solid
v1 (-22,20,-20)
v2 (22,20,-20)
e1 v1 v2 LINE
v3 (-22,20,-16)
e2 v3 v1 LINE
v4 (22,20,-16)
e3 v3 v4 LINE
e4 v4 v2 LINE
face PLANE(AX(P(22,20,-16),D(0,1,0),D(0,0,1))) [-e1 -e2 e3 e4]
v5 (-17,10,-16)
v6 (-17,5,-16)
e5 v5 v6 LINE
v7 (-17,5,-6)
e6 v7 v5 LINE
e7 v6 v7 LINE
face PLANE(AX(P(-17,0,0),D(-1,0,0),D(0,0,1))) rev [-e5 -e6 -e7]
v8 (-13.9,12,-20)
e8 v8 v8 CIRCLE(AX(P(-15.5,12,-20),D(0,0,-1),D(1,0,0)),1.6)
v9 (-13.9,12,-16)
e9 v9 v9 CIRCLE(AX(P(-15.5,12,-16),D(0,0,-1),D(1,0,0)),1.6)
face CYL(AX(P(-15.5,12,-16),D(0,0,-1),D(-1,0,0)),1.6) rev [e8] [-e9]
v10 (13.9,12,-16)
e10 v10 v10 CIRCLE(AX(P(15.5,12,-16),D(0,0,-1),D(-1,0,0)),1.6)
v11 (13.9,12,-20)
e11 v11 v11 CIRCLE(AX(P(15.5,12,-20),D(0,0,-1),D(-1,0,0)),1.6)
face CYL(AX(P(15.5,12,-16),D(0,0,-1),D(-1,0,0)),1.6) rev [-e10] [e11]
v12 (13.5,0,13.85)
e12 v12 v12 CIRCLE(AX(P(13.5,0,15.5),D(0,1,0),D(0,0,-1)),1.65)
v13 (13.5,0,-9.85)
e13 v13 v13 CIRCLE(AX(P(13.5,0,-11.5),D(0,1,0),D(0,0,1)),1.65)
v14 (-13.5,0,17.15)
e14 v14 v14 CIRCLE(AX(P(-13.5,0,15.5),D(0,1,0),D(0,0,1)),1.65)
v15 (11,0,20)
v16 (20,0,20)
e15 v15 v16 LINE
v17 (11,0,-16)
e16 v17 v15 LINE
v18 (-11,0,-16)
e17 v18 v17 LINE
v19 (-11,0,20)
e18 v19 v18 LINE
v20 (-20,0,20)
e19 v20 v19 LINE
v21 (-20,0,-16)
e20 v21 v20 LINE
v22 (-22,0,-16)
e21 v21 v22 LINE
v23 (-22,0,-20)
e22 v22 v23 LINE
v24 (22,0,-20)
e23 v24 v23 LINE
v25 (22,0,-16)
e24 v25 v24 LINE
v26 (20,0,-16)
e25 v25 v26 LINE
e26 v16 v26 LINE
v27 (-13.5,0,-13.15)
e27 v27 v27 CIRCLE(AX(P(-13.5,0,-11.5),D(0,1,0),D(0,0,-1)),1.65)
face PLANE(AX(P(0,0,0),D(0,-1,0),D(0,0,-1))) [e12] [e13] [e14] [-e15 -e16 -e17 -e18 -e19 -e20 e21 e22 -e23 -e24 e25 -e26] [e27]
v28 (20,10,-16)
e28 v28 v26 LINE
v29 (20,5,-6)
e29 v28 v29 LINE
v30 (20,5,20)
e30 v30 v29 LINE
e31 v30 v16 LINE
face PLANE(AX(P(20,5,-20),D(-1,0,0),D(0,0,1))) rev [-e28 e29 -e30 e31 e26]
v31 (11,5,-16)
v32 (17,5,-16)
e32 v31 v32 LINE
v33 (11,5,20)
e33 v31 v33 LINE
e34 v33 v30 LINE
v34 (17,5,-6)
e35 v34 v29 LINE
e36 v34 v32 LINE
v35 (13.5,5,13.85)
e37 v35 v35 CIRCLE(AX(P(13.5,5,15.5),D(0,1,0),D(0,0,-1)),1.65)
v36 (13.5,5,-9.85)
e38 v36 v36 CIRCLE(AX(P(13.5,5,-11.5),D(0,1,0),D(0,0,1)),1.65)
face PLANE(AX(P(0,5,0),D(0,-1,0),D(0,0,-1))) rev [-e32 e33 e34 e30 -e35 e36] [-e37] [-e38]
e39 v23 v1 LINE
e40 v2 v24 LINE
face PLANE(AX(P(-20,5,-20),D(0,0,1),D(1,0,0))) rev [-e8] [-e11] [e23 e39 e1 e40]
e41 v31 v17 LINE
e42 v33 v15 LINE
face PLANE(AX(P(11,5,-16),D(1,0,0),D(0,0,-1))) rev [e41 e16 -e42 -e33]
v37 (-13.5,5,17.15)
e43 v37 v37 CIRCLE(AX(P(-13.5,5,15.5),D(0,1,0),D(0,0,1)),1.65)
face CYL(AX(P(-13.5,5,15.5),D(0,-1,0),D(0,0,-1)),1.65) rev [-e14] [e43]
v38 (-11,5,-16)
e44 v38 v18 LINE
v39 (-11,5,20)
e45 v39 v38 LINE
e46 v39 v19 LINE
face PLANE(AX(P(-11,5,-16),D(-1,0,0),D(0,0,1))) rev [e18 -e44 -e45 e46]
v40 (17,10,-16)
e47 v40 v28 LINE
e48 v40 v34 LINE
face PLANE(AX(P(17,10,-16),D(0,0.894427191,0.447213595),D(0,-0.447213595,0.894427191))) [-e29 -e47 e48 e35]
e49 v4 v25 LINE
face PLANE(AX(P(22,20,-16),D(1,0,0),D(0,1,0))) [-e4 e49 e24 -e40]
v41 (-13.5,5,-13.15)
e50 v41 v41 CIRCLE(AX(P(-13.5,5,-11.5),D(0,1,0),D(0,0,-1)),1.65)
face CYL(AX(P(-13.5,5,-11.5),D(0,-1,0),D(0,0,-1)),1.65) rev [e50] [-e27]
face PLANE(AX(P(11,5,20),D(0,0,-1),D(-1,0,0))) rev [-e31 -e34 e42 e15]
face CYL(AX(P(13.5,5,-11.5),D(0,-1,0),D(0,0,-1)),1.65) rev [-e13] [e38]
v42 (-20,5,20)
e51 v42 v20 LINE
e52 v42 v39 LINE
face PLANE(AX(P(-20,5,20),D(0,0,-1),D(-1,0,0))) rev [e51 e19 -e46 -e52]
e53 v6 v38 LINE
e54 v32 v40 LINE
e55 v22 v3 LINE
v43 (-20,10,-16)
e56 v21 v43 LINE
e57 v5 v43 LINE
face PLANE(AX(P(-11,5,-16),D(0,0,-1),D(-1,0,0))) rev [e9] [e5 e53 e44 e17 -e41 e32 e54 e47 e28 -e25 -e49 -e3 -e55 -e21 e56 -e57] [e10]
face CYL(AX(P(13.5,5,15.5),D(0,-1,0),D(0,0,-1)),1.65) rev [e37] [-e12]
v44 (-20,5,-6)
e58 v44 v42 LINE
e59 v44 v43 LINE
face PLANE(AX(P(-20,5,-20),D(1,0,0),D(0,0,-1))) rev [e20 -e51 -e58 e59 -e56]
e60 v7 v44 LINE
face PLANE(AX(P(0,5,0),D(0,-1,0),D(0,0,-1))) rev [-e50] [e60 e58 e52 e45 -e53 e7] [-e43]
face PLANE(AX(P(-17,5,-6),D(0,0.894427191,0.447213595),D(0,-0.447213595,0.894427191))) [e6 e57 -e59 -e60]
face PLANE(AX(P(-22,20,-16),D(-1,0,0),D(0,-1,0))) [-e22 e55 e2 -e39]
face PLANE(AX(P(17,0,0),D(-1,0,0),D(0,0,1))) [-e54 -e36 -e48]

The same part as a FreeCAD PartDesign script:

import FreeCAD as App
import Part
import Sketcher
Q = App.Units.Quantity


def add_polygon(sketch, points):
    """Adds a closed chain of lines whose ends are joined by coincident constraints."""
    first, n = sketch.GeometryCount, len(points)
    for a, b in zip(points, points[1:] + points[:1]):
        sketch.addGeometry(Part.LineSegment(App.Vector(*a, 0), App.Vector(*b, 0)), False)
    for i in range(n):
        sketch.addConstraint(Sketcher.Constraint("Coincident", first + i, 2, first + (i + 1) % n, 1))

doc = App.newDocument("Part")
body = doc.addObject("PartDesign::Body", "Body")

# Sketch on XZ plane
sketch1 = doc.addObject("Sketcher::SketchObject", "Sketch")
body.addObject(sketch1)
sketch1.AttachmentSupport = (doc.XZ_Plane, [""])
sketch1.MapMode = "FlatFace"
add_polygon(sketch1, [(20, -20), (-20, -20), (-20, 20), (-11, 20), (-11, -16), (11, -16), (11, 20), (20, 20)])  # lines 0-7
sketch1.addGeometry(Part.Circle(App.Vector(13.5, 15.5, 0), App.Vector(0, 0, 1), 1.65), False)  # 8
sketch1.addGeometry(Part.Circle(App.Vector(-13.5, 15.5, 0), App.Vector(0, 0, 1), 1.65), False)  # 9
sketch1.addGeometry(Part.Circle(App.Vector(13.5, -11.5, 0), App.Vector(0, 0, 1), 1.65), False)  # 10
sketch1.addGeometry(Part.Circle(App.Vector(-13.5, -11.5, 0), App.Vector(0, 0, 1), 1.65), False)  # 11
sketch1.addConstraint(Sketcher.Constraint("Horizontal", 0))
sketch1.addConstraint(Sketcher.Constraint("Vertical", 1))
sketch1.addConstraint(Sketcher.Constraint("Horizontal", 2))
sketch1.addConstraint(Sketcher.Constraint("Vertical", 3))
sketch1.addConstraint(Sketcher.Constraint("Horizontal", 4))
sketch1.addConstraint(Sketcher.Constraint("Vertical", 5))
sketch1.addConstraint(Sketcher.Constraint("Horizontal", 6))
sketch1.addConstraint(Sketcher.Constraint("Vertical", 7))
sketch1.addConstraint(Sketcher.Constraint("Equal", 8, 9))
sketch1.addConstraint(Sketcher.Constraint("Equal", 9, 10))
sketch1.addConstraint(Sketcher.Constraint("Equal", 10, 11))
sketch1.addConstraint(Sketcher.Constraint("Symmetric", 0, 2, 6, 2, -1, 1))
sketch1.addConstraint(Sketcher.Constraint("Symmetric", 8, 3, 9, 3, -2))
sketch1.addConstraint(Sketcher.Constraint("Symmetric", 10, 3, 11, 3, -2))
sketch1.addConstraint(Sketcher.Constraint("Symmetric", 2, 2, 5, 2, -2))
sketch1.addConstraint(Sketcher.Constraint("Vertical", 8, 3, 10, 3))
sketch1.addConstraint(Sketcher.Constraint("Equal", 0, 1))
sketch1.addConstraint(Sketcher.Constraint("Diameter", 8, Q("3.3 mm")))
sketch1.addConstraint(Sketcher.Constraint("DistanceX", 0, 2, 0, 1, Q("40 mm")))
sketch1.addConstraint(Sketcher.Constraint("DistanceX", 2, 1, 2, 2, Q("9 mm")))
sketch1.addConstraint(Sketcher.Constraint("DistanceY", 3, 2, 3, 1, Q("36 mm")))
sketch1.addConstraint(Sketcher.Constraint("DistanceX", 9, 3, 8, 3, Q("27 mm")))
sketch1.addConstraint(Sketcher.Constraint("DistanceY", 10, 3, 8, 3, Q("27 mm")))
sketch1.addConstraint(Sketcher.Constraint("DistanceY", -1, 1, 8, 3, Q("15.5 mm")))
pad1 = doc.addObject("PartDesign::Pad", "Pad")
body.addObject(pad1)
pad1.Profile = sketch1
pad1.Length = 5
pad1.Reversed = True

# Sketch on XY plane
sketch2 = doc.addObject("Sketcher::SketchObject", "Sketch001")
body.addObject(sketch2)
sketch2.AttachmentSupport = (doc.XY_Plane, [""])
sketch2.MapMode = "FlatFace"
sketch2.AttachmentOffset = App.Placement(App.Vector(0, 0, -20), App.Rotation())
add_polygon(sketch2, [(22, 20), (22, 0), (-22, 0), (-22, 20)])  # lines 0-3
sketch2.addGeometry(Part.Circle(App.Vector(15.5, 12, 0), App.Vector(0, 0, 1), 1.6), False)  # 4
sketch2.addGeometry(Part.Circle(App.Vector(-15.5, 12, 0), App.Vector(0, 0, 1), 1.6), False)  # 5
sketch2.addConstraint(Sketcher.Constraint("Vertical", 0))
sketch2.addConstraint(Sketcher.Constraint("Horizontal", 1))
sketch2.addConstraint(Sketcher.Constraint("Vertical", 2))
sketch2.addConstraint(Sketcher.Constraint("Horizontal", 3))
sketch2.addConstraint(Sketcher.Constraint("Equal", 4, 5))
sketch2.addConstraint(Sketcher.Constraint("Symmetric", 0, 2, 1, 2, -1, 1))
sketch2.addConstraint(Sketcher.Constraint("Symmetric", 4, 3, 5, 3, -2))
sketch2.addConstraint(Sketcher.Constraint("Diameter", 4, Q("3.2 mm")))
sketch2.addConstraint(Sketcher.Constraint("DistanceX", 1, 2, 1, 1, Q("44 mm")))
sketch2.addConstraint(Sketcher.Constraint("DistanceY", 0, 2, 0, 1, Q("20 mm")))
sketch2.addConstraint(Sketcher.Constraint("DistanceY", -1, 1, 4, 3, Q("12 mm")))
sketch2.addConstraint(Sketcher.Constraint("DistanceX", 5, 3, 4, 3, Q("31 mm")))
pad2 = doc.addObject("PartDesign::Pad", "Pad001")
body.addObject(pad2)
pad2.Profile = sketch2
pad2.Length = 4

# Sketch on YZ plane
sketch3 = doc.addObject("Sketcher::SketchObject", "Sketch002")
body.addObject(sketch3)
sketch3.AttachmentSupport = (doc.YZ_Plane, [""])
sketch3.MapMode = "FlatFace"
sketch3.AttachmentOffset = App.Placement(App.Vector(0, 0, -20), App.Rotation())
add_polygon(sketch3, [(0, -16), (5, -6), (5, -16)])  # lines 0-2
sketch3.addConstraint(Sketcher.Constraint("Vertical", 1))
sketch3.addConstraint(Sketcher.Constraint("Horizontal", 2))
sketch3.addConstraint(Sketcher.Constraint("PointOnObject", 2, 2, -2))
sketch3.addConstraint(Sketcher.Constraint("DistanceX", 2, 2, 2, 1, Q("5 mm")))
sketch3.addConstraint(Sketcher.Constraint("DistanceY", 1, 2, 1, 1, Q("10 mm")))
sketch3.addConstraint(Sketcher.Constraint("DistanceY", 0, 2, -1, 1, Q("6 mm")))
pad3 = doc.addObject("PartDesign::Pad", "Pad002")
body.addObject(pad3)
pad3.Profile = sketch3
pad3.Length = 3

# Sketch on YZ plane
sketch4 = doc.addObject("Sketcher::SketchObject", "Sketch003")
body.addObject(sketch4)
sketch4.AttachmentSupport = (doc.YZ_Plane, [""])
sketch4.MapMode = "FlatFace"
sketch4.AttachmentOffset = App.Placement(App.Vector(0, 0, 20), App.Rotation())
add_polygon(sketch4, [(10, -16), (5, -6), (5, -16)])  # lines 0-2
sketch4.addConstraint(Sketcher.Constraint("Vertical", 1))
sketch4.addConstraint(Sketcher.Constraint("Horizontal", 2))
sketch4.addConstraint(Sketcher.Constraint("DistanceX", 2, 1, 2, 2, Q("5 mm")))
sketch4.addConstraint(Sketcher.Constraint("DistanceY", 1, 2, 1, 1, Q("10 mm")))
sketch4.addConstraint(Sketcher.Constraint("DistanceX", -1, 1, 0, 2, Q("5 mm")))
sketch4.addConstraint(Sketcher.Constraint("DistanceY", 0, 2, -1, 1, Q("6 mm")))
pad4 = doc.addObject("PartDesign::Pad", "Pad003")
body.addObject(pad4)
pad4.Profile = sketch4
pad4.Length = 3
pad4.Reversed = True

# Sketch on YZ plane
sketch5 = doc.addObject("Sketcher::SketchObject", "Sketch004")
body.addObject(sketch5)
sketch5.AttachmentSupport = (doc.YZ_Plane, [""])
sketch5.MapMode = "FlatFace"
sketch5.AttachmentOffset = App.Placement(App.Vector(0, 0, -20), App.Rotation())
add_polygon(sketch5, [(10, -16), (5, -16), (5, -6)])  # lines 0-2
sketch5.addConstraint(Sketcher.Constraint("Horizontal", 0))
sketch5.addConstraint(Sketcher.Constraint("Vertical", 1))
sketch5.addConstraint(Sketcher.Constraint("DistanceX", 0, 2, 0, 1, Q("5 mm")))
sketch5.addConstraint(Sketcher.Constraint("DistanceY", 1, 1, 1, 2, Q("10 mm")))
sketch5.addConstraint(Sketcher.Constraint("DistanceX", -1, 1, 0, 2, Q("5 mm")))
sketch5.addConstraint(Sketcher.Constraint("DistanceY", 0, 2, -1, 1, Q("16 mm")))
pad5 = doc.addObject("PartDesign::Pad", "Pad004")
body.addObject(pad5)
pad5.Profile = sketch5
pad5.Length = 3

doc.recompute()
